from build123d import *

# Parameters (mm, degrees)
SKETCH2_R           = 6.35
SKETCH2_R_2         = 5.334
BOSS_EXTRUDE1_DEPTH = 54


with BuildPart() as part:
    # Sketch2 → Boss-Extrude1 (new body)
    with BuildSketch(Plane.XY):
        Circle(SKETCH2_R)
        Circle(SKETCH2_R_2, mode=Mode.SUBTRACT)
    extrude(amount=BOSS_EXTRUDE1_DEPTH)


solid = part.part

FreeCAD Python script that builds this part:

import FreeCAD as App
import Part
import Sketcher
Q = App.Units.Quantity

doc = App.newDocument("Part")
body = doc.addObject("PartDesign::Body", "Body")

# Sketch on XY plane
sketch1 = body.newObject("Sketcher::SketchObject", "Sketch")
sketch1.AttachmentSupport = (doc.getObject("XY_Plane"), [""])
sketch1.MapMode = "FlatFace"
sketch1.addGeometry([
    Part.Circle(App.Vector(0, 0, 0), App.Vector(0, 0, 1), 6.35),
    Part.Circle(App.Vector(0, 0, 0), App.Vector(0, 0, 1), 5.334),
], False)
sketch1.addConstraint([
    Sketcher.Constraint("Coincident", 0, 3, -1, 1),
    Sketcher.Constraint("Coincident", 1, 3, -1, 1),
    Sketcher.Constraint("Diameter", 0, Q("0.5 in")),
    Sketcher.Constraint("Diameter", 1, Q("0.42 in")),
])
pad1 = body.newObject("PartDesign::Pad", "Pad")
pad1.Profile = sketch1
pad1.Length = 54

doc.recompute()
